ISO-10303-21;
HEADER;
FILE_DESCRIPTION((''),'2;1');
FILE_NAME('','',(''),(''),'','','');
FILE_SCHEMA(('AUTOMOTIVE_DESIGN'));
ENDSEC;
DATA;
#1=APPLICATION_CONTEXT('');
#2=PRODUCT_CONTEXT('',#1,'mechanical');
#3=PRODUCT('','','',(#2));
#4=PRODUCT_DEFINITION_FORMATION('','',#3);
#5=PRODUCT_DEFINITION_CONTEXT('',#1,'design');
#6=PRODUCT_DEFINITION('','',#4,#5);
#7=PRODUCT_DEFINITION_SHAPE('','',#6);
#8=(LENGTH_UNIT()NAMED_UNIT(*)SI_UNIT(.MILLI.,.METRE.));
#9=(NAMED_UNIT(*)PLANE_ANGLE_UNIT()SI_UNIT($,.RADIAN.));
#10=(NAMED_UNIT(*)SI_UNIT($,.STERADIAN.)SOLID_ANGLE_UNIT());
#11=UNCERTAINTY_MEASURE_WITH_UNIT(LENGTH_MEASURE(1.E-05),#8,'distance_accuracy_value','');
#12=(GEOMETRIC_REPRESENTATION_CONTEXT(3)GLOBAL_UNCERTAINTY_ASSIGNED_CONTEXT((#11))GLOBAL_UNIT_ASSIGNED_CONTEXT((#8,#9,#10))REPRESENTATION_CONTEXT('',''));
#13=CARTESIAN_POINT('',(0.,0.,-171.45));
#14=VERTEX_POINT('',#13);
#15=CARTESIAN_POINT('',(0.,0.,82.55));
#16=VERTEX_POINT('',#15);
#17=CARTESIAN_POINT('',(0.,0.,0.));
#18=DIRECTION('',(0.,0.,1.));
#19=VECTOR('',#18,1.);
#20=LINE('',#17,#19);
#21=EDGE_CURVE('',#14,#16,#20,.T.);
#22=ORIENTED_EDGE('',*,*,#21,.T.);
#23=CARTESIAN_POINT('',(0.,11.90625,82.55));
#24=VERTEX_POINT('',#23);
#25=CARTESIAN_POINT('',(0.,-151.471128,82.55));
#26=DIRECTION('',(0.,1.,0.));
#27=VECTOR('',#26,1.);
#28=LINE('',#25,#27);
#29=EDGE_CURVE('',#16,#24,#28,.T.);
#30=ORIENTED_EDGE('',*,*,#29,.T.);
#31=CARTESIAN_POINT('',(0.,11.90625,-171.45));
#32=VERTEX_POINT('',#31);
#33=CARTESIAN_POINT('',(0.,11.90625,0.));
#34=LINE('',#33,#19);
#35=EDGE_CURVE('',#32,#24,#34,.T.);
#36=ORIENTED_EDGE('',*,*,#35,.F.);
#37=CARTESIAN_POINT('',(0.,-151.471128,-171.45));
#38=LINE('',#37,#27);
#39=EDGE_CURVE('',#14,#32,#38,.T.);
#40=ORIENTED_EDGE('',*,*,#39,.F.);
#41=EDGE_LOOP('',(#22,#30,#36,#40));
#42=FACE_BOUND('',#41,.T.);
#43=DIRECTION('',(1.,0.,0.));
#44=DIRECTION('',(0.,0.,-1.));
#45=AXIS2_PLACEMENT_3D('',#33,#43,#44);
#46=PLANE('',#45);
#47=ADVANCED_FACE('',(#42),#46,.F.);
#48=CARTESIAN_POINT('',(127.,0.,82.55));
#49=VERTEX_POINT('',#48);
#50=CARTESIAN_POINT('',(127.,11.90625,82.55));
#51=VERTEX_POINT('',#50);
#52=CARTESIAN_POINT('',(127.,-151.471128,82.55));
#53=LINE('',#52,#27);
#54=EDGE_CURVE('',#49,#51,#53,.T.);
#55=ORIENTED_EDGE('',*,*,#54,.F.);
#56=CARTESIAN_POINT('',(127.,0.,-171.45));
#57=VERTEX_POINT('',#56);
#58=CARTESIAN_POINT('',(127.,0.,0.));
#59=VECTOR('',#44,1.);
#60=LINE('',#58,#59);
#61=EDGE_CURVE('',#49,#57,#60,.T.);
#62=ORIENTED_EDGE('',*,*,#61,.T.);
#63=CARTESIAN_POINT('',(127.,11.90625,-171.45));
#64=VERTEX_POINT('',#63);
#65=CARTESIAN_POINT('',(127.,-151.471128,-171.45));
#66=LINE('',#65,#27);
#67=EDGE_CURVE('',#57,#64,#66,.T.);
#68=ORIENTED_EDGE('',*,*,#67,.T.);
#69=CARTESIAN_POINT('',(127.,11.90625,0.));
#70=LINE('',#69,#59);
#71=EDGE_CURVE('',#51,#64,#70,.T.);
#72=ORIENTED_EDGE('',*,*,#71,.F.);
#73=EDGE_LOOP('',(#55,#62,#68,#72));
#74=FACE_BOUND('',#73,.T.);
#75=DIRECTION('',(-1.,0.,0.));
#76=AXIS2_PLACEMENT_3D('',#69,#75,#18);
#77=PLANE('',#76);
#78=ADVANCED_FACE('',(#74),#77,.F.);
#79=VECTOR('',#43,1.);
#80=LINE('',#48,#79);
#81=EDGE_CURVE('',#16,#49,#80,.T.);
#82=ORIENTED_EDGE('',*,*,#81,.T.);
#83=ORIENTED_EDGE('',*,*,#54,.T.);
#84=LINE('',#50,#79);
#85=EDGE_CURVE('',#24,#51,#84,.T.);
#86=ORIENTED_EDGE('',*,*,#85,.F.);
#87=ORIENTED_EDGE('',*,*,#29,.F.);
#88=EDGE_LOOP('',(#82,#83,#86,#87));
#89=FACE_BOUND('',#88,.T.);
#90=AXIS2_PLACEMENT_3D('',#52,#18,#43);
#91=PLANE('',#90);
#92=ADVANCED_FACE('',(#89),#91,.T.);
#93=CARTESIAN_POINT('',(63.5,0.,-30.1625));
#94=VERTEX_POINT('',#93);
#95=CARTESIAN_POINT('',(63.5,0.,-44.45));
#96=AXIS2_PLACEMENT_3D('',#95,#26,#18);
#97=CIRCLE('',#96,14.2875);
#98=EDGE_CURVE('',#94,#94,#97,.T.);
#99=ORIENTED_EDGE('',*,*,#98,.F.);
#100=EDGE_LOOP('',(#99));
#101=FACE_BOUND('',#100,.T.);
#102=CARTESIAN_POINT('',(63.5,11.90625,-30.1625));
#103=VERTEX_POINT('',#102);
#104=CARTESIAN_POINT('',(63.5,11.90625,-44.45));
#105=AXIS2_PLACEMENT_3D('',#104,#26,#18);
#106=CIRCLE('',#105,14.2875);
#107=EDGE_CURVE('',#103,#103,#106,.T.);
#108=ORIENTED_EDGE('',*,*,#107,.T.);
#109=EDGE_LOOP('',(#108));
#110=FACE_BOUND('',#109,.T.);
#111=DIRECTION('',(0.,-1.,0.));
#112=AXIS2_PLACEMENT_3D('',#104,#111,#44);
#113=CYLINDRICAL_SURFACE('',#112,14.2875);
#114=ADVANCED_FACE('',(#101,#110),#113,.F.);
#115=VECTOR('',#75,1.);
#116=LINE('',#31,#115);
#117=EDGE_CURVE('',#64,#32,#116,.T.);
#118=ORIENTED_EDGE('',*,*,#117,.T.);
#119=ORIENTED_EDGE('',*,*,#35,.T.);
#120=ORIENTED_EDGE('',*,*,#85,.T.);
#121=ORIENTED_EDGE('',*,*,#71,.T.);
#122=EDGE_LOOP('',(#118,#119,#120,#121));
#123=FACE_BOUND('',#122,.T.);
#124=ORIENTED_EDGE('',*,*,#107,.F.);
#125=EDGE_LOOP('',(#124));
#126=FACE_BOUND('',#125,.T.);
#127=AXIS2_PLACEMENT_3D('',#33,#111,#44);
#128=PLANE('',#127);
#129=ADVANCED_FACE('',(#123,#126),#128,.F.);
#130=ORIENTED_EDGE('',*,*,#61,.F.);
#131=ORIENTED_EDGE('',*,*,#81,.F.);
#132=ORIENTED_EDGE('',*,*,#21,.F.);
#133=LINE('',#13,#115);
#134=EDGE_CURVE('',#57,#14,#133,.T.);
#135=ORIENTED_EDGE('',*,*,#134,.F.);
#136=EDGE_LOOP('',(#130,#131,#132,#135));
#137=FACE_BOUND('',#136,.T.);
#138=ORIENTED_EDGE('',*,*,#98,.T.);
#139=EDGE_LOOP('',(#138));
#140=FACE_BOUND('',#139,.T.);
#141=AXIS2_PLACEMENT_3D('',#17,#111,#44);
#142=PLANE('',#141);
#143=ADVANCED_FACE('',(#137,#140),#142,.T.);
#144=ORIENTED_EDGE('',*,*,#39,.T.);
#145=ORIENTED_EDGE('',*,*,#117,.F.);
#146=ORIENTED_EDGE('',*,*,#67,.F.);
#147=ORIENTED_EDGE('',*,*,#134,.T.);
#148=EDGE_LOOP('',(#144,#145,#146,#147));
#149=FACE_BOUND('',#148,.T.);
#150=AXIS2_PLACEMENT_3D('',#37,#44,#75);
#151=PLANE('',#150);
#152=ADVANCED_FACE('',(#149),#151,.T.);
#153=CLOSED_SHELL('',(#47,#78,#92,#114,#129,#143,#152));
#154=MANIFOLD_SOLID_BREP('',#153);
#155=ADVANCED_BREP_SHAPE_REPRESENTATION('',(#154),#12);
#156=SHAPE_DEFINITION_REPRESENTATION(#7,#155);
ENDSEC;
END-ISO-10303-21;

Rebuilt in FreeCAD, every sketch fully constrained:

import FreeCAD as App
import Part
import Sketcher

V = App.Vector
Q = App.Units.Quantity

doc = App.newDocument("Part")
body = doc.addObject("PartDesign::Body", "Body")

# Sketch on XZ plane
sketch1 = doc.addObject("Sketcher::SketchObject", "Sketch")
body.addObject(sketch1)
sketch1.AttachmentSupport = (doc.XZ_Plane, [""])
sketch1.MapMode = "FlatFace"
sketch1.addGeometry(Part.LineSegment(V(0, -89, 0), V(0, 0, 0)), False)
sketch1.addGeometry(Part.LineSegment(V(0, 0, 0), V(127, 0, 0)), False)
sketch1.addGeometry(Part.LineSegment(V(127, 0, 0), V(127, -89, 0)), False)
sketch1.addGeometry(Part.LineSegment(V(127, -89, 0), V(0, -89, 0)), False)
sketch1.addGeometry(Part.Circle(V(64, -44, 0), V(0, 0, 1), 14), False)
sketch1.addConstraint(Sketcher.Constraint("Coincident", 0, 2, 1, 1))
sketch1.addConstraint(Sketcher.Constraint("Coincident", 1, 2, 2, 1))
sketch1.addConstraint(Sketcher.Constraint("Coincident", 2, 2, 3, 1))
sketch1.addConstraint(Sketcher.Constraint("Coincident", 3, 2, 0, 1))
sketch1.addConstraint(Sketcher.Constraint("Vertical", 0))
sketch1.addConstraint(Sketcher.Constraint("Horizontal", 1))
sketch1.addConstraint(Sketcher.Constraint("Vertical", 2))
sketch1.addConstraint(Sketcher.Constraint("Horizontal", 3))
sketch1.addConstraint(Sketcher.Constraint("Coincident", 0, 2, -1, 1))
sketch1.addConstraint(Sketcher.Constraint("DistanceX", 1, 1, 1, 2, Q("5 in")))
sketch1.addConstraint(Sketcher.Constraint("Diameter", 4, Q("1.125 in")))
sketch1.addConstraint(Sketcher.Constraint("DistanceY", 0, 1, 0, 2, Q("3.5 in")))
sketch1.addConstraint(Sketcher.Constraint("DistanceX", -1, 1, 4, 3, Q("2.5 in")))
sketch1.addConstraint(Sketcher.Constraint("DistanceY", 4, 3, -1, 1, Q("1.75 in")))
pad1 = doc.addObject("PartDesign::Pad", "Pad")
body.addObject(pad1)
pad1.Profile = sketch1
pad1.Length = Q("0.46875 in")
pad1.Reversed = True

# Sketch on XZ plane
sketch2 = doc.addObject("Sketcher::SketchObject", "Sketch001")
body.addObject(sketch2)
sketch2.AttachmentSupport = (doc.XZ_Plane, [""])
sketch2.MapMode = "FlatFace"
sketch2.AttachmentOffset = App.Placement(V(0, 0, -0.46875 * 25.4), App.Rotation())
sketch2.addGeometry(Part.LineSegment(V(0, -171, 0), V(0, -89, 0)), False)
sketch2.addGeometry(Part.LineSegment(V(0, -89, 0), V(127, -89, 0)), False)
sketch2.addGeometry(Part.LineSegment(V(127, -89, 0), V(127, -171, 0)), False)
sketch2.addGeometry(Part.LineSegment(V(127, -171, 0), V(0, -171, 0)), False)
sketch2.addGeometry(Part.LineSegment(V(0, 0, 0), V(0, 83, 0)), False)
sketch2.addGeometry(Part.LineSegment(V(0, 83, 0), V(127, 83, 0)), False)
sketch2.addGeometry(Part.LineSegment(V(127, 83, 0), V(127, 0, 0)), False)
sketch2.addGeometry(Part.LineSegment(V(127, 0, 0), V(0, 0, 0)), False)
sketch2.addConstraint(Sketcher.Constraint("Coincident", 0, 2, 1, 1))
sketch2.addConstraint(Sketcher.Constraint("Coincident", 1, 2, 2, 1))
sketch2.addConstraint(Sketcher.Constraint("Coincident", 2, 2, 3, 1))
sketch2.addConstraint(Sketcher.Constraint("Coincident", 3, 2, 0, 1))
sketch2.addConstraint(Sketcher.Constraint("Coincident", 4, 2, 5, 1))
sketch2.addConstraint(Sketcher.Constraint("Coincident", 5, 2, 6, 1))
sketch2.addConstraint(Sketcher.Constraint("Coincident", 6, 2, 7, 1))
sketch2.addConstraint(Sketcher.Constraint("Coincident", 7, 2, 4, 1))
sketch2.addConstraint(Sketcher.Constraint("Vertical", 0))
sketch2.addConstraint(Sketcher.Constraint("Horizontal", 1))
sketch2.addConstraint(Sketcher.Constraint("Vertical", 2))
sketch2.addConstraint(Sketcher.Constraint("Horizontal", 3))
sketch2.addConstraint(Sketcher.Constraint("Vertical", 4))
sketch2.addConstraint(Sketcher.Constraint("Horizontal", 5))
sketch2.addConstraint(Sketcher.Constraint("Vertical", 6))
sketch2.addConstraint(Sketcher.Constraint("Horizontal", 7))
sketch2.addConstraint(Sketcher.Constraint("Coincident", 7, 2, -1, 1))
sketch2.addConstraint(Sketcher.Constraint("PointOnObject", 0, 2, -2))
sketch2.addConstraint(Sketcher.Constraint("Vertical", 2, 2, 5, 2))
sketch2.addConstraint(Sketcher.Constraint("Equal", 2, 4))
sketch2.addConstraint(Sketcher.Constraint("DistanceX", 1, 1, 1, 2, Q("5 in")))
sketch2.addConstraint(Sketcher.Constraint("DistanceY", 3, 2, 4, 2, Q("10 in")))
sketch2.addConstraint(Sketcher.Constraint("DistanceY", 0, 1, 0, 2, Q("3.25 in")))
pad2 = doc.addObject("PartDesign::Pad", "Pad001")
body.addObject(pad2)
pad2.Profile = sketch2
pad2.Length = Q("0.46875 in")

doc.recompute()
